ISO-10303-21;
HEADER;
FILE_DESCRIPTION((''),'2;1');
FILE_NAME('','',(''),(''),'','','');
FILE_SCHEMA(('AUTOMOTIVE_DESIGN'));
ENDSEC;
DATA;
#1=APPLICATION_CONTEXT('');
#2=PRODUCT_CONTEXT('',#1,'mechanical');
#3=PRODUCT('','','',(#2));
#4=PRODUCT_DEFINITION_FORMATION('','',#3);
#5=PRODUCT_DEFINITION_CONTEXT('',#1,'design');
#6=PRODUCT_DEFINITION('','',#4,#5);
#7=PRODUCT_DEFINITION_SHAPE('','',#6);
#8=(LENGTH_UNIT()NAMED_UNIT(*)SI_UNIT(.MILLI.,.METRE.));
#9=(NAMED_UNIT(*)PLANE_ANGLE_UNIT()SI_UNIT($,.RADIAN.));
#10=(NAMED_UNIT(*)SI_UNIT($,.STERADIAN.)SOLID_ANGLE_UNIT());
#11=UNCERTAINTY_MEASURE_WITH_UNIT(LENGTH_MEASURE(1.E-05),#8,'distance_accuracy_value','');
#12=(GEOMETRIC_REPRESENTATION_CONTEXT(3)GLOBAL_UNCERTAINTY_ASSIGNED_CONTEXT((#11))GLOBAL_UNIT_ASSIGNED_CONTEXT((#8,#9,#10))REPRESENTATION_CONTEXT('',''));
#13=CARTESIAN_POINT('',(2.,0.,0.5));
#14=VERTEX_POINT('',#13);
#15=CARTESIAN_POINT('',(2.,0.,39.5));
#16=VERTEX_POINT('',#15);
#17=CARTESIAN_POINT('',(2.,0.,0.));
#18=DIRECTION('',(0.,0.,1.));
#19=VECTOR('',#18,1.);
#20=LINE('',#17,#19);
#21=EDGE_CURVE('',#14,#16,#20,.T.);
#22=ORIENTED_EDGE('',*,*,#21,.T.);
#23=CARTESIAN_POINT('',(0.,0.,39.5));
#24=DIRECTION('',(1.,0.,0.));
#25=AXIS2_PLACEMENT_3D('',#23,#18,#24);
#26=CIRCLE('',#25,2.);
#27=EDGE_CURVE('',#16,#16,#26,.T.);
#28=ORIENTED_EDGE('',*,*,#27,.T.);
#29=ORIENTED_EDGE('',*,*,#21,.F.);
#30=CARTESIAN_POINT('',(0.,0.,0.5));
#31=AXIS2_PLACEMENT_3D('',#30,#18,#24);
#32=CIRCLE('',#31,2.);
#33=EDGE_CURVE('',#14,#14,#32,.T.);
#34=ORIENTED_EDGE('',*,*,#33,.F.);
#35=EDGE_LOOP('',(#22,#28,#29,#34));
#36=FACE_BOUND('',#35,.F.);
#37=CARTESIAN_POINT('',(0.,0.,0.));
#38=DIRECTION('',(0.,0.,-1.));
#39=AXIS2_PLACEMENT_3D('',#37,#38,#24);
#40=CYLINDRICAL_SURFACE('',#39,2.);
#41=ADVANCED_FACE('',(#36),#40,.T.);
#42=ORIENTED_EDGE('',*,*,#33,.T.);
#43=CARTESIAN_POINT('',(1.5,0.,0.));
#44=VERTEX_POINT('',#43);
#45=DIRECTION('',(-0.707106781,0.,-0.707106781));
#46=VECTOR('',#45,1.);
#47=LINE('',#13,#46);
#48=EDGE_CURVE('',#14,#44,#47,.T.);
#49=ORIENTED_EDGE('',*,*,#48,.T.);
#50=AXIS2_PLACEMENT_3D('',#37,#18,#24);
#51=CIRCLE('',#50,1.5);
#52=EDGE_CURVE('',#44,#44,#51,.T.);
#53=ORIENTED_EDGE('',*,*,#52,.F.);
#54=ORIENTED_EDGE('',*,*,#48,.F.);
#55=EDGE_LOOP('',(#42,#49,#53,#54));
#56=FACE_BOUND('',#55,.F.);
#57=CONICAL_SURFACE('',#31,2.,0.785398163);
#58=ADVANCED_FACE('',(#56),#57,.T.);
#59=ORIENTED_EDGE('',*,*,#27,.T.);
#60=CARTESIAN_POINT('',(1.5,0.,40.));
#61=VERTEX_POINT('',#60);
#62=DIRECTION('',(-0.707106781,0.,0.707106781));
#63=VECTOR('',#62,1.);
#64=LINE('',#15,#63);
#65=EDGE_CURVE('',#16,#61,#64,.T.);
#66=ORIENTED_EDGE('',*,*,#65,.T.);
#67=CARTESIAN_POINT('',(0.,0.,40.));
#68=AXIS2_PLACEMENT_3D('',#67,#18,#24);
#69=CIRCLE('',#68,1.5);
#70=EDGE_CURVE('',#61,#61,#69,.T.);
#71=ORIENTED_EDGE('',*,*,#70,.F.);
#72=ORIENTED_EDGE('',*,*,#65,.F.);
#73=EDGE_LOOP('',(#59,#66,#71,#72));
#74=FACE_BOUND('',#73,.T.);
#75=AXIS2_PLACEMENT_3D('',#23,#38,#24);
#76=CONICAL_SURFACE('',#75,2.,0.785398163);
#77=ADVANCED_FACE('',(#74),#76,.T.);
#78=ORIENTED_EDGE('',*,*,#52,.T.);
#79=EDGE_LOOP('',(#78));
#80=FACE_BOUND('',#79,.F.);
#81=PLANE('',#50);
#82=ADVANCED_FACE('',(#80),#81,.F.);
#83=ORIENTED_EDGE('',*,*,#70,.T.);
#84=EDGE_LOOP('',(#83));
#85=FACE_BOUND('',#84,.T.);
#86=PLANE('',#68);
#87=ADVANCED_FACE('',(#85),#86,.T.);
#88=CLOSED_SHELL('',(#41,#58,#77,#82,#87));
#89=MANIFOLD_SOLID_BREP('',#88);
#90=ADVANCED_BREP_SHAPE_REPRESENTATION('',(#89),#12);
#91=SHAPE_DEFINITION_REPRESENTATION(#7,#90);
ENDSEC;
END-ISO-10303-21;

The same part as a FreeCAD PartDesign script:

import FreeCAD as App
import Part
import Sketcher
from FreeCAD import Vector
Q = App.Units.Quantity


def edges_at(feature, points):
    """Names of the edges that pass closest to the given points."""
    edges = feature.Shape.Edges
    near = lambda p: min(range(len(edges)), key=lambda i: edges[i].distToShape(Part.Vertex(*p))[0])
    return sorted({f"Edge{near(p) + 1}" for p in points})

doc = App.newDocument("Part")
body = doc.addObject("PartDesign::Body", "Body")

# Sketch on XY plane
sketch1 = body.newObject("Sketcher::SketchObject", "Sketch")
sketch1.AttachmentSupport = (doc.getObject("XY_Plane"), [""])
sketch1.MapMode = "FlatFace"
sketch1.addGeometry(Part.Circle(Vector(0, 0, 0), Vector(0, 0, 1), 2), False)
sketch1.addConstraint([
    Sketcher.Constraint("Coincident", 0, 3, -1, 1),
    Sketcher.Constraint("Diameter", 0, Q("4 mm")),
])
pad1 = body.newObject("PartDesign::Pad", "Pad")
pad1.Profile = sketch1
pad1.Length = 40
doc.recompute()

chamfer = body.newObject("PartDesign::Chamfer", "Chamfer")
chamfer.Base = (pad1, edges_at(pad1, [(-2, 0, 40), (-2, 0, 0)]))
chamfer.Size = 0.5

doc.recompute()
